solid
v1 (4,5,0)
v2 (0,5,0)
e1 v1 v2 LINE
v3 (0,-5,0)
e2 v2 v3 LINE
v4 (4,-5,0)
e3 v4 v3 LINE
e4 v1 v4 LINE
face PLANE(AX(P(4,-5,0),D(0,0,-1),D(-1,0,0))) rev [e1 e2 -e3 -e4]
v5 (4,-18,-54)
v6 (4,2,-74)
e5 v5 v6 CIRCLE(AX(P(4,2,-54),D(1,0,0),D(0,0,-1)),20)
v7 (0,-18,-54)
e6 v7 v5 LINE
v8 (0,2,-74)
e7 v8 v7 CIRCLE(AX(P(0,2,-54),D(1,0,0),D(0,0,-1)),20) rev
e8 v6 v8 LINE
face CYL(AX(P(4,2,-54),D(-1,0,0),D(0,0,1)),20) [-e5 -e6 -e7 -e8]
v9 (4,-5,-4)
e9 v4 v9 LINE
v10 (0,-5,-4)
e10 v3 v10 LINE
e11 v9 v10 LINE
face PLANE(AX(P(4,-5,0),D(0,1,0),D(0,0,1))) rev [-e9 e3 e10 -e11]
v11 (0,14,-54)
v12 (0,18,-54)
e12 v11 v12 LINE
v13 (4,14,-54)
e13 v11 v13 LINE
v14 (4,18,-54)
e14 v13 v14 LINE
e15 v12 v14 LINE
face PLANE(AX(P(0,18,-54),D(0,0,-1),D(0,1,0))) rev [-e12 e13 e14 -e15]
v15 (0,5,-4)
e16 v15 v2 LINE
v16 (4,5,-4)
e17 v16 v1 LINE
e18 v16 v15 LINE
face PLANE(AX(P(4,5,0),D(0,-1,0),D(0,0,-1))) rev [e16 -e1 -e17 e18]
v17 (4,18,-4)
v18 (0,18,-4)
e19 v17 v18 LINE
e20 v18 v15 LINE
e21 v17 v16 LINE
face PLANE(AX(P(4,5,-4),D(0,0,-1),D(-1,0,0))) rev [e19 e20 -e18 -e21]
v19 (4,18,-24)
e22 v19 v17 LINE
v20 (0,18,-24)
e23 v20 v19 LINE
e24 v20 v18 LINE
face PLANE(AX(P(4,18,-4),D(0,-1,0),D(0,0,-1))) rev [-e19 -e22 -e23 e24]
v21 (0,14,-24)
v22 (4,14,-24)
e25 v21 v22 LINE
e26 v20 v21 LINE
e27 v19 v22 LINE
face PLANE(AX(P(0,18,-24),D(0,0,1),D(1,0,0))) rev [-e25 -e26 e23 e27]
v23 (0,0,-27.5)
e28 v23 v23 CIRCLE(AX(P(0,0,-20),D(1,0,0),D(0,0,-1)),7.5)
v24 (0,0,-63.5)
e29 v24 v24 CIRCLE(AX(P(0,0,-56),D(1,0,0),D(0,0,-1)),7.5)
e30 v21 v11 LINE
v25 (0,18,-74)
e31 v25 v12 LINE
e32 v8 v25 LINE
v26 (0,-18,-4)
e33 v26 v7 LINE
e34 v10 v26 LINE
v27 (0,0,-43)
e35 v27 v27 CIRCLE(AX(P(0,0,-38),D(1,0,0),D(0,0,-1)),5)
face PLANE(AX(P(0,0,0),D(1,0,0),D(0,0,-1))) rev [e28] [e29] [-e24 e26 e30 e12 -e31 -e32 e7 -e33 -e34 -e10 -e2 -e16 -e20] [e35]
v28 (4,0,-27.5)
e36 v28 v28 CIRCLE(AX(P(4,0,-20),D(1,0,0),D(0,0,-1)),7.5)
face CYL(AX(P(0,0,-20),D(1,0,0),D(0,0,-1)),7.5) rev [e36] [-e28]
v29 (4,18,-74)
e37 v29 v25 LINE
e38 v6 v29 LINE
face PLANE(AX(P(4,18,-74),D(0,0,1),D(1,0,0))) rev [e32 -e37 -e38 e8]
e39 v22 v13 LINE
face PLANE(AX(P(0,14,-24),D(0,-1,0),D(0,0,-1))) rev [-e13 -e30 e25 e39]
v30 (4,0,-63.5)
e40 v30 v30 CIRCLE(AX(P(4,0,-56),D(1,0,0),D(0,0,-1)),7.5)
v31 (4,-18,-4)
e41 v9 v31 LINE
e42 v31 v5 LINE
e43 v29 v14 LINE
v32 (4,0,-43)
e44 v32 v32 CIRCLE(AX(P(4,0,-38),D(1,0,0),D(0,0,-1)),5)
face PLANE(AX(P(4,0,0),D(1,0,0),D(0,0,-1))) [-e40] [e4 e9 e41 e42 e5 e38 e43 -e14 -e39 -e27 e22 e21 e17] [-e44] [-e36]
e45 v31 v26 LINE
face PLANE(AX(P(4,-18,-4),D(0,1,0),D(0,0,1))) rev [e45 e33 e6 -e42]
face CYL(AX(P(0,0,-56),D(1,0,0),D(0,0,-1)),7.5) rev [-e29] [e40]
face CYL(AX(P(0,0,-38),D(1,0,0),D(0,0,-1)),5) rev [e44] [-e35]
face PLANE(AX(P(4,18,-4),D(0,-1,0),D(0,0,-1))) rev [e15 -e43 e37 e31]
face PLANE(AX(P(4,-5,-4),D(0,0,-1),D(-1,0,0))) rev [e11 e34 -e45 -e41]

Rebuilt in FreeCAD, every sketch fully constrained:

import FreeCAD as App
import Part
import Sketcher

V = App.Vector


def edges_at(feature, points):
    """Names of the edges that pass closest to the given points."""
    edges = feature.Shape.Edges
    near = lambda p: min(range(len(edges)), key=lambda i: edges[i].distToShape(Part.Vertex(*p))[0])
    return sorted({f"Edge{near(p) + 1}" for p in points})

doc = App.newDocument("Part")
body = doc.addObject("PartDesign::Body", "Body")

# Sketch on YZ plane
sketch1 = doc.addObject("Sketcher::SketchObject", "Sketch")
body.addObject(sketch1)
sketch1.AttachmentSupport = (doc.YZ_Plane, [""])
sketch1.MapMode = "FlatFace"
sketch1.addGeometry([
    Part.LineSegment(V(5, 0, 0), V(-5, 0, 0)),  # 0
    Part.LineSegment(V(-5, 0, 0), V(-5, -4, 0)),  # 1
    Part.LineSegment(V(-5, -4, 0), V(-18, -4, 0)),  # 2
    Part.LineSegment(V(-18, -4, 0), V(-18, -74, 0)),  # 3
    Part.LineSegment(V(-18, -74, 0), V(18, -74, 0)),  # 4
    Part.LineSegment(V(18, -74, 0), V(18, -4, 0)),  # 5
    Part.LineSegment(V(18, -4, 0), V(5, -4, 0)),  # 6
    Part.LineSegment(V(5, -4, 0), V(5, 0, 0)),  # 7
], False)
sketch1.addConstraint([
    Sketcher.Constraint("Coincident", 0, 2, 1, 1),
    Sketcher.Constraint("Coincident", 1, 2, 2, 1),
    Sketcher.Constraint("Coincident", 2, 2, 3, 1),
    Sketcher.Constraint("Coincident", 3, 2, 4, 1),
    Sketcher.Constraint("Coincident", 4, 2, 5, 1),
    Sketcher.Constraint("Coincident", 5, 2, 6, 1),
    Sketcher.Constraint("Coincident", 6, 2, 7, 1),
    Sketcher.Constraint("Coincident", 7, 2, 0, 1),
    Sketcher.Constraint("Horizontal", 0),
    Sketcher.Constraint("Vertical", 1),
    Sketcher.Constraint("Horizontal", 2),
    Sketcher.Constraint("Vertical", 3),
    Sketcher.Constraint("Horizontal", 4),
    Sketcher.Constraint("Vertical", 5),
    Sketcher.Constraint("Horizontal", 6),
    Sketcher.Constraint("Vertical", 7),
    Sketcher.Constraint("Symmetric", 0, 2, 7, 2, -1, 1),
    Sketcher.Constraint("Symmetric", 2, 2, 5, 2, -2),
    Sketcher.Constraint("DistanceX", 0, 2, 0, 1, 10.0),
    Sketcher.Constraint("DistanceX", 2, 2, 2, 1, 13.0),
    Sketcher.Constraint("DistanceY", 1, 2, 1, 1, 4.0),
    Sketcher.Constraint("DistanceY", 3, 2, 3, 1, 70.0),
])
pad1 = doc.addObject("PartDesign::Pad", "Pad")
body.addObject(pad1)
pad1.Profile = sketch1
pad1.Length = 4

# Sketch on YZ plane
sketch2 = doc.addObject("Sketcher::SketchObject", "Sketch001")
body.addObject(sketch2)
sketch2.AttachmentSupport = (doc.YZ_Plane, [""])
sketch2.MapMode = "FlatFace"
sketch2.AttachmentOffset = App.Placement(V(0, 0, 4), App.Rotation())
sketch2.addGeometry([
    Part.LineSegment(V(18, -24, 0), V(14, -24, 0)),
    Part.LineSegment(V(14, -24, 0), V(14, -54, 0)),
    Part.LineSegment(V(14, -54, 0), V(18, -54, 0)),
    Part.LineSegment(V(18, -54, 0), V(18, -24, 0)),
], False)
sketch2.addConstraint([
    Sketcher.Constraint("Coincident", 0, 2, 1, 1),
    Sketcher.Constraint("Coincident", 1, 2, 2, 1),
    Sketcher.Constraint("Coincident", 2, 2, 3, 1),
    Sketcher.Constraint("Coincident", 3, 2, 0, 1),
    Sketcher.Constraint("Horizontal", 0),
    Sketcher.Constraint("Vertical", 1),
    Sketcher.Constraint("Horizontal", 2),
    Sketcher.Constraint("Vertical", 3),
    Sketcher.Constraint("DistanceX", 0, 2, 0, 1, 4.0),
    Sketcher.Constraint("DistanceY", 1, 2, 1, 1, 30.0),
    Sketcher.Constraint("DistanceX", -1, 1, 0, 2, 14.0),
    Sketcher.Constraint("DistanceY", 0, 2, -1, 1, 24.0),
])
pocket1 = doc.addObject("PartDesign::Pocket", "Pocket")
body.addObject(pocket1)
pocket1.Profile = sketch2
pocket1.Type = "ThroughAll"
doc.recompute()

fillet = doc.addObject("PartDesign::Fillet", "Fillet")
body.addObject(fillet)
fillet.Base = (pocket1, edges_at(pocket1, [(2, -18, -74)]))
fillet.Radius = 20

# Sketch on YZ plane
sketch3 = doc.addObject("Sketcher::SketchObject", "Sketch002")
body.addObject(sketch3)
sketch3.AttachmentSupport = (doc.YZ_Plane, [""])
sketch3.MapMode = "FlatFace"
sketch3.AttachmentOffset = App.Placement(V(0, 0, 4), App.Rotation())
sketch3.addGeometry([
    Part.Circle(V(0, -20, 0), V(0, 0, 1), 8),
    Part.Circle(V(0, -56, 0), V(0, 0, 1), 8),
    Part.Circle(V(0, -38, 0), V(0, 0, 1), 5),
], False)
sketch3.addConstraint([
    Sketcher.Constraint("Equal", 0, 1),
    Sketcher.Constraint("PointOnObject", 0, 3, -2),
    Sketcher.Constraint("PointOnObject", 1, 3, -2),
    Sketcher.Constraint("PointOnObject", 2, 3, -2),
    Sketcher.Constraint("Diameter", 0, 15.0),
    Sketcher.Constraint("Diameter", 2, 10.0),
    Sketcher.Constraint("DistanceY", 0, 3, -1, 1, 20.0),
    Sketcher.Constraint("DistanceY", 1, 3, -1, 1, 56.0),
    Sketcher.Constraint("DistanceY", 2, 3, -1, 1, 38.0),
])
pocket2 = doc.addObject("PartDesign::Pocket", "Pocket001")
body.addObject(pocket2)
pocket2.Profile = sketch3
pocket2.Type = "ThroughAll"

doc.recompute()
